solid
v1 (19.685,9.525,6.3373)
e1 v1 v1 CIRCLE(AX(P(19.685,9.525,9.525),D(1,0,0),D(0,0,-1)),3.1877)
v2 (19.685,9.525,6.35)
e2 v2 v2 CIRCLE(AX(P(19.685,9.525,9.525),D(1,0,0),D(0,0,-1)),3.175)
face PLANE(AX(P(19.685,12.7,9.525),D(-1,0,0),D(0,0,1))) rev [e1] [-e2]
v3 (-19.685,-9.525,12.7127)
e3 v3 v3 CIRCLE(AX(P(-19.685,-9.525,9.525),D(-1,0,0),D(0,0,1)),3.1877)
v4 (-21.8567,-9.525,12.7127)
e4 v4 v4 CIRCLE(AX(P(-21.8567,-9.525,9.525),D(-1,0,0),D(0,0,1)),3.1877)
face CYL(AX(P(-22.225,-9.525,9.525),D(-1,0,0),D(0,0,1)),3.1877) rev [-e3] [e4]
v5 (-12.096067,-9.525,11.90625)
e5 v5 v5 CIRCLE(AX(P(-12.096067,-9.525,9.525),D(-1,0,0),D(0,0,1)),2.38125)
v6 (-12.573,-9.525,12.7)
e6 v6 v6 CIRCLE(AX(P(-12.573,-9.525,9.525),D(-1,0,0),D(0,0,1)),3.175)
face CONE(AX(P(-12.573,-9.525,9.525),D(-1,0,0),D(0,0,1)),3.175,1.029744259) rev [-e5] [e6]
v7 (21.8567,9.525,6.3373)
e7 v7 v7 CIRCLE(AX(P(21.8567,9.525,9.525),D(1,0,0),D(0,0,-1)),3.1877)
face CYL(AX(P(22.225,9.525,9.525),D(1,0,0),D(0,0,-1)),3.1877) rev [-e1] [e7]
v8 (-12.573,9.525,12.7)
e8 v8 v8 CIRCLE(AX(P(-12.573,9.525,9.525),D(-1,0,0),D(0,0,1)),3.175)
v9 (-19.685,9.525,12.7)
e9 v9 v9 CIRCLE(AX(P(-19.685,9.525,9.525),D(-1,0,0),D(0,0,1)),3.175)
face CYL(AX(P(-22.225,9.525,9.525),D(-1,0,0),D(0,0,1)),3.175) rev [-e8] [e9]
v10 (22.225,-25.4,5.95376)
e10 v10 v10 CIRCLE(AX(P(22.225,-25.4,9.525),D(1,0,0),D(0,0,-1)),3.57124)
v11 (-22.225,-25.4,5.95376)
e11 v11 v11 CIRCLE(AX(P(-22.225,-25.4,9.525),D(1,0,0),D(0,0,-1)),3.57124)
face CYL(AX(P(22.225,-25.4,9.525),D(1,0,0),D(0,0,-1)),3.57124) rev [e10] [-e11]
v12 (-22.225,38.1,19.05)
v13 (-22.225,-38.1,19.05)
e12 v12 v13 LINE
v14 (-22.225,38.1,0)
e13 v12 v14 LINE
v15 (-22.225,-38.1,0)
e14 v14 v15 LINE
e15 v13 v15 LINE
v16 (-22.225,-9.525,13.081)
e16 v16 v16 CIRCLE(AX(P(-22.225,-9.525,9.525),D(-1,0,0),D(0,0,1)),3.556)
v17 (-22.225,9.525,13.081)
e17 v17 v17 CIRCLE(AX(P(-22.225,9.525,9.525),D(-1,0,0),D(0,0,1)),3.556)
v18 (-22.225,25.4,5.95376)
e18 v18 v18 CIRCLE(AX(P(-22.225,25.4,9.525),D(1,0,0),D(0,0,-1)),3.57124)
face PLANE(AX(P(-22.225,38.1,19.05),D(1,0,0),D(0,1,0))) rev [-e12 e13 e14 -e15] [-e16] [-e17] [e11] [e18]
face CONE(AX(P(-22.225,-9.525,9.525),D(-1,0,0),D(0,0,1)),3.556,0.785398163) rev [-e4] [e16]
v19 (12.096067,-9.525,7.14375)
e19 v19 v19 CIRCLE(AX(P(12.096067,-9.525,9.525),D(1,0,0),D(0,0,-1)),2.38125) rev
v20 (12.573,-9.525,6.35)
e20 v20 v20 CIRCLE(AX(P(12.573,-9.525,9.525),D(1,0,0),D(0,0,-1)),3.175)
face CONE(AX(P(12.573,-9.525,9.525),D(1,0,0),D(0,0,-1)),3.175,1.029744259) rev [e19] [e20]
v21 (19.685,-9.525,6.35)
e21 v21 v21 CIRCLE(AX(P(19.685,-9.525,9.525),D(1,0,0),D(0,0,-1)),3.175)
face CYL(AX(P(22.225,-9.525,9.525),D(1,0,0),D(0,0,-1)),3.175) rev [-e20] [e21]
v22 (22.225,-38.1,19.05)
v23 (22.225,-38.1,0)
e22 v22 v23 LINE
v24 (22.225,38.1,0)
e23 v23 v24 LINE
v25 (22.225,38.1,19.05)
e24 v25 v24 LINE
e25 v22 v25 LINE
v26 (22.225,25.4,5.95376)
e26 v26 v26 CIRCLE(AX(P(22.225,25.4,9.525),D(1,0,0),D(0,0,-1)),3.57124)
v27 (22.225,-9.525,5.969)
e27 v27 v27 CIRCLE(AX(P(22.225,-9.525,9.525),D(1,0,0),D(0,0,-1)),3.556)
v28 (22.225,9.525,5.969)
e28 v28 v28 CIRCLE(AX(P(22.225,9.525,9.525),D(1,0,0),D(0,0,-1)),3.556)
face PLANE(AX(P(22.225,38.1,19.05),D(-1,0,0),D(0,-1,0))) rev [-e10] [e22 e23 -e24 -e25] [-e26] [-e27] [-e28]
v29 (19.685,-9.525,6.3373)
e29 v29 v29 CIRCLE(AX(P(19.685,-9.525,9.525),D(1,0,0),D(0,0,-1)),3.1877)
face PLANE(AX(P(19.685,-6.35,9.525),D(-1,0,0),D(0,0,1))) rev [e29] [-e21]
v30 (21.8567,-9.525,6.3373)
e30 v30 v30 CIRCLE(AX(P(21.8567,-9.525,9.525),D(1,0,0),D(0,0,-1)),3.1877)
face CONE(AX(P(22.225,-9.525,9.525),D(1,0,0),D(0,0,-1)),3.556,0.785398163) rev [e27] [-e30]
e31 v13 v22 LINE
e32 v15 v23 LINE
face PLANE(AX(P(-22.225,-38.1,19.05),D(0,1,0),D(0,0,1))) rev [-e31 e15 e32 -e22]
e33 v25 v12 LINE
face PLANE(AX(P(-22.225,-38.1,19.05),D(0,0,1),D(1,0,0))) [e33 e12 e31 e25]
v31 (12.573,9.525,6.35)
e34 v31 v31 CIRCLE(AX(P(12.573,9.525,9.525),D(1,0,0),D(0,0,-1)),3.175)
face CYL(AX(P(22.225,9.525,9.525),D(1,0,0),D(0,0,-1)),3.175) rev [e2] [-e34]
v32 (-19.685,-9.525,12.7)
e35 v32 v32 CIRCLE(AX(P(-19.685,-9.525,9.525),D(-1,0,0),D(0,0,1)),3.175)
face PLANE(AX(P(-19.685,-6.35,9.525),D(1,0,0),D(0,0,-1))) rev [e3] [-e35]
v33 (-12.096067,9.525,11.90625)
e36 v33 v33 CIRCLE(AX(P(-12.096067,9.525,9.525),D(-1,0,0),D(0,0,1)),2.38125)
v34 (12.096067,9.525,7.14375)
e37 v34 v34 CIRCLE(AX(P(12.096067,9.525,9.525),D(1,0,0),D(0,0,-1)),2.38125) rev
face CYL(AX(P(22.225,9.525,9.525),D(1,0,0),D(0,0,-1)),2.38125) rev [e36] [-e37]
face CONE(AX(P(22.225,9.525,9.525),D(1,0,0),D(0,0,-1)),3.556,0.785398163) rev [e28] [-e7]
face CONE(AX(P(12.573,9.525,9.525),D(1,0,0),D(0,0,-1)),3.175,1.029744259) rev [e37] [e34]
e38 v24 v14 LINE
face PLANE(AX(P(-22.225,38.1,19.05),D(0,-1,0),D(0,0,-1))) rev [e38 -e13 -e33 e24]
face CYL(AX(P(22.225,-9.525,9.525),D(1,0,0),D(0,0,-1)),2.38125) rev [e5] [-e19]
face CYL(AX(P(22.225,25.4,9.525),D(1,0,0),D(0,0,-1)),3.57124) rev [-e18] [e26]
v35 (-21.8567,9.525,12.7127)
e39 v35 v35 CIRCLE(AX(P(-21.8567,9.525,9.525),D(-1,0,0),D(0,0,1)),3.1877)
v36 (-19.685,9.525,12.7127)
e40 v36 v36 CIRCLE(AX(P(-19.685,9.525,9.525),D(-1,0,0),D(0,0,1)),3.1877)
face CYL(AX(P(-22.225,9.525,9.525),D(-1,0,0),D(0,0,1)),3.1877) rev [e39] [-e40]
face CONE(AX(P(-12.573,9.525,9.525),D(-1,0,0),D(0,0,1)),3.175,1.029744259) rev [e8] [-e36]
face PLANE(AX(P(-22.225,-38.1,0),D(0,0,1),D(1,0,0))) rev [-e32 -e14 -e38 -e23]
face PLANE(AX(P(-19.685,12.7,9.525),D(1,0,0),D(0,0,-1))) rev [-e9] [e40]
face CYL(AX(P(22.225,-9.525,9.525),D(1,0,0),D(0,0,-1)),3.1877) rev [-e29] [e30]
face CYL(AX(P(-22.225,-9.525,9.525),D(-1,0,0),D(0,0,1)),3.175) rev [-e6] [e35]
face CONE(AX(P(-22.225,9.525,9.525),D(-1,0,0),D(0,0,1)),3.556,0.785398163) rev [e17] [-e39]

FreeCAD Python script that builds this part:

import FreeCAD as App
import Part
import Sketcher

V = App.Vector
Q = App.Units.Quantity


def add_polygon(sketch, points):
    """Adds a closed chain of lines whose ends are joined by coincident constraints."""
    first, n = sketch.GeometryCount, len(points)
    for a, b in zip(points, points[1:] + points[:1]):
        sketch.addGeometry(Part.LineSegment(App.Vector(*a, 0), App.Vector(*b, 0)), False)
    for i in range(n):
        sketch.addConstraint(Sketcher.Constraint("Coincident", first + i, 2, first + (i + 1) % n, 1))

doc = App.newDocument("Part")
body = doc.addObject("PartDesign::Body", "Body")

# Sketch on XY plane
sketch1 = body.newObject("Sketcher::SketchObject", "Sketch")
sketch1.AttachmentSupport = (doc.getObject("XY_Plane"), [""])
sketch1.MapMode = "FlatFace"
add_polygon(sketch1, [(-22, 38), (-22, -38), (22, -38), (22, 38)])  # lines 0-3
sketch1.addConstraint([
    Sketcher.Constraint("Vertical", 0),
    Sketcher.Constraint("Horizontal", 1),
    Sketcher.Constraint("Vertical", 2),
    Sketcher.Constraint("Horizontal", 3),
    Sketcher.Constraint("Symmetric", 0, 2, 2, 2, -1, 1),
    Sketcher.Constraint("DistanceY", 0, 2, 0, 1, Q("3 in")),
    Sketcher.Constraint("DistanceX", 1, 1, 1, 2, Q("1.75 in")),
])
pad1 = body.newObject("PartDesign::Pad", "Pad")
pad1.Profile = sketch1
pad1.Length = Q("0.75 in")

# Sketch on YZ plane
sketch2 = body.newObject("Sketcher::SketchObject", "Sketch001")
sketch2.AttachmentSupport = (doc.getObject("YZ_Plane"), [""])
sketch2.MapMode = "FlatFace"
sketch2.AttachmentOffset = App.Placement(V(0, 0, 0.875 * 25.4), App.Rotation())
sketch2.addGeometry([
    Part.Circle(V(25.4, 9.5, 0), V(0, 0, 1), 3.6),
    Part.Circle(V(-25.4, 9.5, 0), V(0, 0, 1), 3.6),
], False)
sketch2.addConstraint([
    Sketcher.Constraint("Equal", 0, 1),
    Sketcher.Constraint("Symmetric", 0, 3, 1, 3, -2),
    Sketcher.Constraint("DistanceX", -1, 1, 0, 3, Q("1 in")),
    Sketcher.Constraint("Diameter", 0, Q("0.2812 in")),
    Sketcher.Constraint("DistanceY", -1, 1, 0, 3, Q("0.375 in")),
])
doc.recompute()
hole = body.newObject("PartDesign::Hole", "Hole")
hole.Profile = sketch2
hole.ThreadType = "None"
hole.Diameter = Q("0.2812 in")
hole.DepthType = "ThroughAll"

# Sketch on XZ plane
sketch3 = body.newObject("Sketcher::SketchObject", "Sketch002")
sketch3.AttachmentSupport = (doc.getObject("XZ_Plane"), [""])
sketch3.MapMode = "FlatFace"
sketch3.AttachmentOffset = App.Placement(V(0, 0, 0.375 * 25.4), App.Rotation())
add_polygon(sketch3, [(10.665, 9.525), (22.225, 9.525), (22.225, 5.969), (21.857, 6.337), (19.685, 6.337), (19.685, 6.35), (12.573, 6.35)])  # lines 0-6
sketch3.addGeometry(Part.LineSegment(V(22.225, 9.525, 0), V(10.665, 9.525, 0)), True)  # axis
sketch3.addConstraint([
    Sketcher.Constraint("Horizontal", 0),
    Sketcher.Constraint("Vertical", 1),
    Sketcher.Constraint("Horizontal", 3),
    Sketcher.Constraint("Vertical", 4),
    Sketcher.Constraint("Horizontal", 5),
    Sketcher.Constraint("Horizontal", 7),
    Sketcher.Constraint("Coincident", 7, 1, 0, 2),
    Sketcher.Constraint("Equal", 0, 7),
    Sketcher.Constraint("Angle", 2, Q("135 deg")),
    Sketcher.Constraint("Angle", 6, Q("121 deg")),
    Sketcher.Constraint("DistanceX", 5, 2, 5, 1, Q("0.28 in")),
    Sketcher.Constraint("DistanceY", 1, 2, 1, 1, Q("0.14 in")),
    Sketcher.Constraint("DistanceX", 3, 2, 1, 2, Q("0.1 in")),
    Sketcher.Constraint("DistanceY", -1, 1, 4, 2, Q("0.25 in")),
    Sketcher.Constraint("DistanceX", 3, 2, 3, 1, Q("0.0855 in")),
    Sketcher.Constraint("DistanceY", 4, 1, 4, 2, Q("0.0005 in")),
    Sketcher.Constraint("DistanceX", -1, 1, 0, 2, Q("0.875 in")),
])
groove = body.newObject("PartDesign::Groove", "Groove")
groove.Profile = sketch3
groove.ReferenceAxis = (sketch3, ["Axis0"])
groove.Angle = 360
doc.recompute()

linearpattern = body.newObject("PartDesign::LinearPattern", "LinearPattern")
linearpattern.Originals = [groove]
linearpattern.Direction = (doc.getObject("Y_Axis"), [""])
linearpattern.Mode = "offset"
linearpattern.Offset = Q("0.75 in")
linearpattern.Occurrences = 2
body.Tip = linearpattern

# Sketch on YZ plane
sketch4 = body.newObject("Sketcher::SketchObject", "Sketch003")
sketch4.AttachmentSupport = (doc.getObject("YZ_Plane"), [""])
sketch4.MapMode = "FlatFace"
sketch4.AttachmentOffset = App.Placement(V(0, 0, 0.875 * 25.4), App.Rotation())
sketch4.addGeometry([
    Part.Circle(V(9.5, 9.5, 0), V(0, 0, 1), 2.4),
    Part.Circle(V(-9.5, 9.5, 0), V(0, 0, 1), 2.4),
], False)
sketch4.addConstraint([
    Sketcher.Constraint("Equal", 0, 1),
    Sketcher.Constraint("Symmetric", 0, 3, 1, 3, -2),
    Sketcher.Constraint("Diameter", 0, Q("0.1875 in")),
    Sketcher.Constraint("DistanceX", 1, 3, 0, 3, Q("0.75 in")),
    Sketcher.Constraint("DistanceY", -1, 1, 0, 3, Q("0.375 in")),
])
doc.recompute()
hole2 = body.newObject("PartDesign::Hole", "Hole001")
hole2.Profile = sketch4
hole2.ThreadType = "None"
hole2.Diameter = Q("0.1875 in")
hole2.DepthType = "ThroughAll"
doc.recompute()

mirrored = body.newObject("PartDesign::Mirrored", "Mirrored")
mirrored.Originals = [groove]
mirrored.MirrorPlane = (doc.getObject("YZ_Plane"), [""])
body.Tip = mirrored

# Sketch on XZ plane
sketch5 = body.newObject("Sketcher::SketchObject", "Sketch004")
sketch5.AttachmentSupport = (doc.getObject("XZ_Plane"), [""])
sketch5.MapMode = "FlatFace"
sketch5.AttachmentOffset = App.Placement(V(0, 0, -0.375 * 25.4), App.Rotation())
add_polygon(sketch5, [(-22.225, 9.525), (-10.665, 9.525), (-12.573, 6.35), (-19.685, 6.35), (-19.685, 6.337), (-21.857, 6.337), (-22.225, 5.969)])  # lines 0-6
sketch5.addGeometry(Part.LineSegment(V(-10.665, 9.525, 0), V(-22.225, 9.525, 0)), True)  # axis
sketch5.addConstraint([
    Sketcher.Constraint("Horizontal", 0),
    Sketcher.Constraint("Horizontal", 2),
    Sketcher.Constraint("Vertical", 3),
    Sketcher.Constraint("Horizontal", 4),
    Sketcher.Constraint("Vertical", 6),
    Sketcher.Constraint("Horizontal", 7),
    Sketcher.Constraint("Coincident", 7, 1, 0, 2),
    Sketcher.Constraint("Vertical", 5, 2, 7, 2),
    Sketcher.Constraint("Angle", 1, Q("-121 deg")),
    Sketcher.Constraint("Angle", 5, Q("-135 deg")),
    Sketcher.Constraint("DistanceX", 2, 2, 2, 1, Q("0.28 in")),
    Sketcher.Constraint("DistanceY", 6, 1, 6, 2, Q("0.14 in")),
    Sketcher.Constraint("DistanceX", 5, 2, 3, 2, Q("0.1 in")),
    Sketcher.Constraint("DistanceY", -1, 1, 1, 2, Q("0.25 in")),
    Sketcher.Constraint("DistanceX", 4, 2, 4, 1, Q("0.0855 in")),
    Sketcher.Constraint("DistanceY", 3, 2, 3, 1, Q("0.0005 in")),
    Sketcher.Constraint("DistanceX", 1, 2, -1, 1, Q("0.495 in")),
])
groove2 = body.newObject("PartDesign::Groove", "Groove001")
groove2.Profile = sketch5
groove2.ReferenceAxis = (sketch5, ["Axis0"])
groove2.Angle = 360

doc.recompute()
